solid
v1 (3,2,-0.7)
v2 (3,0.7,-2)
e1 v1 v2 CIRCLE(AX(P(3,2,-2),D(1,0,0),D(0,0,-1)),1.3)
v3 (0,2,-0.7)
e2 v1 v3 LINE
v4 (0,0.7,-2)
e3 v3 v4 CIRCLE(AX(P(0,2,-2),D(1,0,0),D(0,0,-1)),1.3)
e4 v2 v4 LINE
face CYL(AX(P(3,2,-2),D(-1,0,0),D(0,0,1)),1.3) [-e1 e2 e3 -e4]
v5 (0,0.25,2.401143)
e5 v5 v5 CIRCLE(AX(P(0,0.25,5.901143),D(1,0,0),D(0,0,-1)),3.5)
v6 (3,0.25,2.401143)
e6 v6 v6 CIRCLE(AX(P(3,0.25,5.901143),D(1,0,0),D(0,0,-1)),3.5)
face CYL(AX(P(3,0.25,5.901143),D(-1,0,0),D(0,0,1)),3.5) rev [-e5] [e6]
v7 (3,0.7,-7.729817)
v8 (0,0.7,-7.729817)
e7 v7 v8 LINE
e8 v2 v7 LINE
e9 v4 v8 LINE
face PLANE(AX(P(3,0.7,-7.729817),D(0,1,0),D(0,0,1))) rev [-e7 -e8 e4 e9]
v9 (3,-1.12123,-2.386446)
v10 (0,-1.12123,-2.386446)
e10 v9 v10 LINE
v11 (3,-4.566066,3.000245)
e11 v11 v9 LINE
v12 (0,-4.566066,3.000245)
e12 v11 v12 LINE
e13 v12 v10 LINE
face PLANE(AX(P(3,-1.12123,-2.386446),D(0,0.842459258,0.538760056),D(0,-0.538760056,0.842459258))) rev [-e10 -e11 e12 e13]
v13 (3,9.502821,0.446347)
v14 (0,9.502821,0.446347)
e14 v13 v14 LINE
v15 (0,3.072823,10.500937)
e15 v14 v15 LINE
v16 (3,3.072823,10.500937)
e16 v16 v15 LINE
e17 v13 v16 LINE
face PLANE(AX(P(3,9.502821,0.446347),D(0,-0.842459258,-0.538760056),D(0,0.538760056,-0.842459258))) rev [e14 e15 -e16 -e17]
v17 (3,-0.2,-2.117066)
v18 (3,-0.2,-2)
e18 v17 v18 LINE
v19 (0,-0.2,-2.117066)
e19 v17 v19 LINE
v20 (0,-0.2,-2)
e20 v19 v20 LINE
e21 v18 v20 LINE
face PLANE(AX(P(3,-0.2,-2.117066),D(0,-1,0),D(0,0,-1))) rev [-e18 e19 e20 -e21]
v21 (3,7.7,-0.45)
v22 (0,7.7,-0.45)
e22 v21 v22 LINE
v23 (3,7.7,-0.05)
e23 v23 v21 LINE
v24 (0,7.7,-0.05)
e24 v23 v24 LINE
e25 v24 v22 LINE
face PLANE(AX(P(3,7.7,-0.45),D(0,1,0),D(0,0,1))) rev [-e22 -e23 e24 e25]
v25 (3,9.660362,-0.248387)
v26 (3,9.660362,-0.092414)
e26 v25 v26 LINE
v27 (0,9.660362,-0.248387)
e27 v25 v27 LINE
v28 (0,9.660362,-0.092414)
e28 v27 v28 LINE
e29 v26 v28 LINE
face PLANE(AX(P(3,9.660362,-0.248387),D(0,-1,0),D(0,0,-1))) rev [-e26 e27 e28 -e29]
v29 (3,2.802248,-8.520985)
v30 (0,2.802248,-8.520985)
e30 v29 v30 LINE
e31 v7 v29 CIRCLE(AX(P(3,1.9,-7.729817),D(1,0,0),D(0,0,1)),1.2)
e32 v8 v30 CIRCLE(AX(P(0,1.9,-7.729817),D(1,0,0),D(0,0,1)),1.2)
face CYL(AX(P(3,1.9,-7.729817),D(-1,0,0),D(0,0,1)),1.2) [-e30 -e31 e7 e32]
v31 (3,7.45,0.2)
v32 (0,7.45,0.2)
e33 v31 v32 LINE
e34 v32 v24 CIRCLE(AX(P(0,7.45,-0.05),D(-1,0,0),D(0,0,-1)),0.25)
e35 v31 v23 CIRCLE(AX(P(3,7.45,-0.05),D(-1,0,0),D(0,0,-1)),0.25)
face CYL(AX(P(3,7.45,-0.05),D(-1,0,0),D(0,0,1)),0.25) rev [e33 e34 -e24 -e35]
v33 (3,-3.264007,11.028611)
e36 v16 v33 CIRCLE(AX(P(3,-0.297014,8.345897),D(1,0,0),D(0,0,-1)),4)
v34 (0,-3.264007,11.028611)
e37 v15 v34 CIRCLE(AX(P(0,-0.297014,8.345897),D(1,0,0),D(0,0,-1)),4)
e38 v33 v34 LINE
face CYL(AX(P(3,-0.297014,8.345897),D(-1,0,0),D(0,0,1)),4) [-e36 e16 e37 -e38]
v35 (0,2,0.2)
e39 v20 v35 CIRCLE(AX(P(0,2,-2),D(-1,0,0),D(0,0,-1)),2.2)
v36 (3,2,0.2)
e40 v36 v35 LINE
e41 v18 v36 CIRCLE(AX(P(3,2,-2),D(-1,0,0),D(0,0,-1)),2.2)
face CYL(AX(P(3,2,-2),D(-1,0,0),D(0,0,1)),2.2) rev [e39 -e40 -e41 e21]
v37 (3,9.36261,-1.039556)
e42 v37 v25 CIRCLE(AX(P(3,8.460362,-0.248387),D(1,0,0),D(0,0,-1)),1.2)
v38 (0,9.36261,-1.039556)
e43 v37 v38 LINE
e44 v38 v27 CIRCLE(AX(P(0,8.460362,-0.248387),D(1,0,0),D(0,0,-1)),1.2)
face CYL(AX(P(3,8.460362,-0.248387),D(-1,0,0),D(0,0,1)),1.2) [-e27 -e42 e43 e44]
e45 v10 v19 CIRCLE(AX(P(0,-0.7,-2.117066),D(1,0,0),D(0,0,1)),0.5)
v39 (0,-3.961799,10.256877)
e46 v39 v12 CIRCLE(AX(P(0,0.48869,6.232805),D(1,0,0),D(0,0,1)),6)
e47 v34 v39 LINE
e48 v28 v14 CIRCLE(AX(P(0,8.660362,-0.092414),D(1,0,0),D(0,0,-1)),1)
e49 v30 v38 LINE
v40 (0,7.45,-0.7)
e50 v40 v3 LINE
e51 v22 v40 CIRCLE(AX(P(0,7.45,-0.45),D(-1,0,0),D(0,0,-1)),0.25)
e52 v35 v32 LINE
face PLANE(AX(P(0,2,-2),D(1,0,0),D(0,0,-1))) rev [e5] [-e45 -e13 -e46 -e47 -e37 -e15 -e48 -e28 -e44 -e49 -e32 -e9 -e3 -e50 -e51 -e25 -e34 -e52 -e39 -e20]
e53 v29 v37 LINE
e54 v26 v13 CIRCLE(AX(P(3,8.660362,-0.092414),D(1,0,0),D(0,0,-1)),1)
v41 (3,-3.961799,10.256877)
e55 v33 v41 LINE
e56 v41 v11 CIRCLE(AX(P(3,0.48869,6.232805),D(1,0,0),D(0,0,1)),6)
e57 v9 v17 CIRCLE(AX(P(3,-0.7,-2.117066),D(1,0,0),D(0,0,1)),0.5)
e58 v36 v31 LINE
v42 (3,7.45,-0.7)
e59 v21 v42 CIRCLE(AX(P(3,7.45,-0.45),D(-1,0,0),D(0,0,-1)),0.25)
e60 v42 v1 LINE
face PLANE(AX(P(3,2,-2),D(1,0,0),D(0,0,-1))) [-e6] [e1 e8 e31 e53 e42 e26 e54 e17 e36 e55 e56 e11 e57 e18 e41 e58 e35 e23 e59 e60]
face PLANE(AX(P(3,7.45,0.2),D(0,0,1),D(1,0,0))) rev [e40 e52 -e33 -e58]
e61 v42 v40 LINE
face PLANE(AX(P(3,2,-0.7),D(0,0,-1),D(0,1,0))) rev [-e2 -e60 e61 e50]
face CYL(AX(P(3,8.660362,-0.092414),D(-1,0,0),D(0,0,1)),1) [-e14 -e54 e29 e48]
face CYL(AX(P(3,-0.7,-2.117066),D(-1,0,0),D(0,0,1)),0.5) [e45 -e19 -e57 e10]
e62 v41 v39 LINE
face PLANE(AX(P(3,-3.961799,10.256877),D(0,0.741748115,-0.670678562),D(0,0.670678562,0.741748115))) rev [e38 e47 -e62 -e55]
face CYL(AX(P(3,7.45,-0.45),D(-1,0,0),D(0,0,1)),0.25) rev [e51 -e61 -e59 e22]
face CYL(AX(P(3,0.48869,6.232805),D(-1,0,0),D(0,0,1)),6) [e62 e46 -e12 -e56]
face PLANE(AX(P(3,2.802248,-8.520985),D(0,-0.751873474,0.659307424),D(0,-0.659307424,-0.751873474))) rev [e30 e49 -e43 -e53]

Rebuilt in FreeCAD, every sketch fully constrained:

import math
import FreeCAD as App
import Part
import Sketcher
Q = App.Units.Quantity

doc = App.newDocument("Part")
body = doc.addObject("PartDesign::Body", "Body")

# Sketch on YZ plane
sketch1 = body.newObject("Sketcher::SketchObject", "Sketch")
sketch1.AttachmentSupport = (doc.getObject("YZ_Plane"), [""])
sketch1.MapMode = "FlatFace"
sketch1.addGeometry(Part.LineSegment(App.Vector(0.7, -2, 0), App.Vector(0.7, -7.73, 0)), False)
sketch1.addGeometry(Part.ArcOfCircle(Part.Circle(App.Vector(1.9, -7.73, 0), App.Vector(0, 0, 1), 1.2), math.radians(180), math.radians(319)), False)
sketch1.addGeometry(Part.LineSegment(App.Vector(2.8, -8.52, 0), App.Vector(9.36, -1.04, 0)), False)
sketch1.addGeometry(Part.ArcOfCircle(Part.Circle(App.Vector(8.46, -0.25, 0), App.Vector(0, 0, 1), 1.2), math.radians(-41), math.radians(0)), False)
sketch1.addGeometry(Part.LineSegment(App.Vector(9.66, -0.25, 0), App.Vector(9.66, -0.09, 0)), False)
sketch1.addGeometry(Part.ArcOfCircle(Part.Circle(App.Vector(8.66, -0.09, 0), App.Vector(0, 0, 1), 1), math.radians(0), math.radians(33)), False)
sketch1.addGeometry(Part.LineSegment(App.Vector(9.5, 0.45, 0), App.Vector(3.07, 10.5, 0)), False)
sketch1.addGeometry(Part.ArcOfCircle(Part.Circle(App.Vector(-0.3, 8.35, 0), App.Vector(0, 0, 1), 4), math.radians(33), math.radians(138)), False)
sketch1.addGeometry(Part.LineSegment(App.Vector(-3.26, 11.03, 0), App.Vector(-3.96, 10.26, 0)), False)
sketch1.addGeometry(Part.ArcOfCircle(Part.Circle(App.Vector(0.49, 6.23, 0), App.Vector(0, 0, 1), 6), math.radians(138), math.radians(213)), False)
sketch1.addGeometry(Part.LineSegment(App.Vector(-4.57, 3, 0), App.Vector(-1.12, -2.39, 0)), False)
sketch1.addGeometry(Part.ArcOfCircle(Part.Circle(App.Vector(-0.7, -2.12, 0), App.Vector(0, 0, 1), 0.5), math.radians(-147), math.radians(0)), False)
sketch1.addGeometry(Part.LineSegment(App.Vector(-0.2, -2.12, 0), App.Vector(-0.2, -2, 0)), False)
sketch1.addGeometry(Part.ArcOfCircle(Part.Circle(App.Vector(2, -2, 0), App.Vector(0, 0, 1), 2.2), math.radians(90), math.radians(180)), False)
sketch1.addGeometry(Part.LineSegment(App.Vector(2, 0.2, 0), App.Vector(7.45, 0.2, 0)), False)
sketch1.addGeometry(Part.ArcOfCircle(Part.Circle(App.Vector(7.45, -0.05, 0), App.Vector(0, 0, 1), 0.25), math.radians(0), math.radians(90)), False)
sketch1.addGeometry(Part.LineSegment(App.Vector(7.7, -0.05, 0), App.Vector(7.7, -0.45, 0)), False)
sketch1.addGeometry(Part.ArcOfCircle(Part.Circle(App.Vector(7.45, -0.45, 0), App.Vector(0, 0, 1), 0.25), math.radians(-90), math.radians(0)), False)
sketch1.addGeometry(Part.LineSegment(App.Vector(7.45, -0.7, 0), App.Vector(2, -0.7, 0)), False)
sketch1.addGeometry(Part.ArcOfCircle(Part.Circle(App.Vector(2, -2, 0), App.Vector(0, 0, 1), 1.3), math.radians(90), math.radians(180)), False)
sketch1.addGeometry(Part.Circle(App.Vector(0.25, 5.9, 0), App.Vector(0, 0, 1), 3.5), False)
sketch1.addConstraint(Sketcher.Constraint("Tangent", 0, 2, 1, 1))
sketch1.addConstraint(Sketcher.Constraint("Tangent", 1, 2, 2, 1))
sketch1.addConstraint(Sketcher.Constraint("Tangent", 2, 2, 3, 1))
sketch1.addConstraint(Sketcher.Constraint("Tangent", 3, 2, 4, 1))
sketch1.addConstraint(Sketcher.Constraint("Tangent", 4, 2, 5, 1))
sketch1.addConstraint(Sketcher.Constraint("Tangent", 5, 2, 6, 1))
sketch1.addConstraint(Sketcher.Constraint("Tangent", 6, 2, 7, 1))
sketch1.addConstraint(Sketcher.Constraint("Tangent", 7, 2, 8, 1))
sketch1.addConstraint(Sketcher.Constraint("Tangent", 8, 2, 9, 1))
sketch1.addConstraint(Sketcher.Constraint("Tangent", 9, 2, 10, 1))
sketch1.addConstraint(Sketcher.Constraint("Tangent", 10, 2, 11, 1))
sketch1.addConstraint(Sketcher.Constraint("Tangent", 11, 2, 12, 1))
sketch1.addConstraint(Sketcher.Constraint("Tangent", 12, 2, 13, 2))
sketch1.addConstraint(Sketcher.Constraint("Tangent", 13, 1, 14, 1))
sketch1.addConstraint(Sketcher.Constraint("Tangent", 14, 2, 15, 2))
sketch1.addConstraint(Sketcher.Constraint("Tangent", 15, 1, 16, 1))
sketch1.addConstraint(Sketcher.Constraint("Tangent", 16, 2, 17, 2))
sketch1.addConstraint(Sketcher.Constraint("Tangent", 17, 1, 18, 1))
sketch1.addConstraint(Sketcher.Constraint("Tangent", 18, 2, 19, 1))
sketch1.addConstraint(Sketcher.Constraint("Tangent", 19, 2, 0, 1))
sketch1.addConstraint(Sketcher.Constraint("Vertical", 0))
sketch1.addConstraint(Sketcher.Constraint("Vertical", 4))
sketch1.addConstraint(Sketcher.Constraint("Vertical", 12))
sketch1.addConstraint(Sketcher.Constraint("Horizontal", 14))
sketch1.addConstraint(Sketcher.Constraint("Vertical", 16))
sketch1.addConstraint(Sketcher.Constraint("Horizontal", 18))
sketch1.addConstraint(Sketcher.Constraint("Coincident", 19, 3, 13, 3))
sketch1.addConstraint(Sketcher.Constraint("Equal", 1, 3))
sketch1.addConstraint(Sketcher.Constraint("Equal", 15, 17))
sketch1.addConstraint(Sketcher.Constraint("Parallel", 6, 10))
sketch1.addConstraint(Sketcher.Constraint("Diameter", 20, Q("7 mm")))
sketch1.addConstraint(Sketcher.Constraint("Radius", 5, Q("1 mm")))
sketch1.addConstraint(Sketcher.Constraint("Radius", 7, Q("4 mm")))
sketch1.addConstraint(Sketcher.Constraint("Radius", 9, Q("6 mm")))
sketch1.addConstraint(Sketcher.Constraint("Radius", 1, Q("1.2 mm")))
sketch1.addConstraint(Sketcher.Constraint("Radius", 11, Q("0.5 mm")))
sketch1.addConstraint(Sketcher.Constraint("Radius", 13, Q("2.2 mm")))
sketch1.addConstraint(Sketcher.Constraint("Radius", 19, Q("1.3 mm")))
sketch1.addConstraint(Sketcher.Constraint("Radius", 15, Q("0.25 mm")))
sketch1.addConstraint(Sketcher.Constraint("DistanceX", -1, 1, 13, 3, Q("2 mm")))
sketch1.addConstraint(Sketcher.Constraint("DistanceY", 13, 3, -1, 1, Q("2 mm")))
sketch1.addConstraint(Sketcher.Constraint("DistanceX", 14, 1, 14, 2, Q("5.45 mm")))
sketch1.addConstraint(Sketcher.Constraint("DistanceX", -1, 1, 20, 3, Q("0.25 mm")))
sketch1.addConstraint(Sketcher.Constraint("DistanceX", 8, 2, -1, 1, Q("3.961799 mm")))
sketch1.addConstraint(Sketcher.Constraint("DistanceY", 9, 2, 20, 3, Q("2.900898 mm")))
sketch1.addConstraint(Sketcher.Constraint("Distance", 6, Q("11.934809 mm")))
sketch1.addConstraint(Sketcher.Constraint("DistanceY", 0, 2, 0, 1, Q("5.729817 mm")))
sketch1.addConstraint(Sketcher.Constraint("DistanceY", 4, 1, 4, 2, Q("0.155973 mm")))
sketch1.addConstraint(Sketcher.Constraint("DistanceY", 12, 1, 12, 2, Q("0.117066 mm")))
sketch1.addConstraint(Sketcher.Constraint("DistanceX", -1, 1, 3, 3, Q("8.460362 mm")))
sketch1.addConstraint(Sketcher.Constraint("DistanceX", -1, 1, 9, 3, Q("0.48869 mm")))
sketch1.addConstraint(Sketcher.Constraint("DistanceX", -1, 1, 1, 2, Q("2.802248 mm")))
pad1 = body.newObject("PartDesign::Pad", "Pad")
pad1.Profile = sketch1
pad1.Length = 3

doc.recompute()
